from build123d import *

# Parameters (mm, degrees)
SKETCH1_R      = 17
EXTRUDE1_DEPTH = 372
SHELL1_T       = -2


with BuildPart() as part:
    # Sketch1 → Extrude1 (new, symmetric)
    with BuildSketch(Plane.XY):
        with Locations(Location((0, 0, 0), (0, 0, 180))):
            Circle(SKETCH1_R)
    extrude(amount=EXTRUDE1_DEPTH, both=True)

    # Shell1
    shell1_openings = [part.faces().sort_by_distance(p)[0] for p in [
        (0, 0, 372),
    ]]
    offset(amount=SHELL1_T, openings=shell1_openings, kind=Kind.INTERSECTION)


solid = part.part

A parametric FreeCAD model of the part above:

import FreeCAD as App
import Part
import Sketcher
Q = App.Units.Quantity


def faces_at(feature, points):
    """Names of the faces that lie closest to the given points."""
    faces = feature.Shape.Faces
    near = lambda p: min(range(len(faces)), key=lambda i: faces[i].distToShape(Part.Vertex(*p))[0])
    return sorted({f"Face{near(p) + 1}" for p in points})

doc = App.newDocument("Part")
body = doc.addObject("PartDesign::Body", "Body")

sketch1 = body.newObject("Sketcher::SketchObject", "Sketch")
sketch1.AttachmentSupport = (doc.getObject("XY_Plane"), [""])
sketch1.MapMode = "FlatFace"
sketch1.addGeometry(Part.Circle(App.Vector(0, 0, 0), App.Vector(0, 0, 1), 17), False)
sketch1.addConstraint(Sketcher.Constraint("Coincident", 0, 3, -1, 1))
sketch1.addConstraint(Sketcher.Constraint("Diameter", 0, Q("34 mm")))
pad1 = body.newObject("PartDesign::Pad", "Pad")
pad1.Profile = sketch1
pad1.Length = 744
pad1.Midplane = True
doc.recompute()

thickness = body.newObject("PartDesign::Thickness", "Thickness")
thickness.Base = (pad1, faces_at(pad1, [(0, 0, 372)]))
thickness.Value = 2
thickness.Reversed = True
thickness.Join = "Intersection"

doc.recompute()
